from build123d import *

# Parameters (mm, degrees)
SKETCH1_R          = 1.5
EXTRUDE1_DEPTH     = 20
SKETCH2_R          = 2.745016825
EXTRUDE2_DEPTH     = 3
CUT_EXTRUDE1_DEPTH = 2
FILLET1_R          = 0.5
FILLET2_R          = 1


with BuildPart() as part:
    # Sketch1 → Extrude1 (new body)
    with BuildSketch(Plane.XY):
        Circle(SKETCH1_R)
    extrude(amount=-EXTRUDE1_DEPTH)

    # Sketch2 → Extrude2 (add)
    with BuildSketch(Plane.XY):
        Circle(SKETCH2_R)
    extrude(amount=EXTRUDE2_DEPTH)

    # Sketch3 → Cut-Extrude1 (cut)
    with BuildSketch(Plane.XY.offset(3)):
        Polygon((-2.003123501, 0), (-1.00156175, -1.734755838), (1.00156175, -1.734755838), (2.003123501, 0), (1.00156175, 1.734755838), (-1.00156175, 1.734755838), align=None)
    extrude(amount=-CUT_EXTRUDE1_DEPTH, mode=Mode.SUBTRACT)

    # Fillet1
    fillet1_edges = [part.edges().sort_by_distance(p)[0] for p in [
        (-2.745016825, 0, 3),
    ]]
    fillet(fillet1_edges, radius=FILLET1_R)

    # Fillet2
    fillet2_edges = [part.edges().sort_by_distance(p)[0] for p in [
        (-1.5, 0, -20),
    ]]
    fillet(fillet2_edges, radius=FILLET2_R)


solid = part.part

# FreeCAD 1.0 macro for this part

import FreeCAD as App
import Part
import Sketcher
from FreeCAD import Vector
Q = App.Units.Quantity


def edges_at(feature, points):
    """Names of the edges that pass closest to the given points."""
    edges = feature.Shape.Edges
    near = lambda p: min(range(len(edges)), key=lambda i: edges[i].distToShape(Part.Vertex(*p))[0])
    return sorted({f"Edge{near(p) + 1}" for p in points})

doc = App.newDocument("Part")
body = doc.addObject("PartDesign::Body", "Body")

sketch1 = body.newObject("Sketcher::SketchObject", "Sketch")
sketch1.AttachmentSupport = (doc.getObject("XY_Plane"), [""])
sketch1.MapMode = "FlatFace"
sketch1.addGeometry(Part.Circle(Vector(0, 0, 0), Vector(0, 0, 1), 1.5), False)
sketch1.addConstraint(Sketcher.Constraint("Coincident", 0, 3, -1, 1))
sketch1.addConstraint(Sketcher.Constraint("Diameter", 0, 3.0))
pad1 = body.newObject("PartDesign::Pad", "Pad")
pad1.Profile = sketch1
pad1.Length = 20
pad1.Reversed = True

sketch2 = body.newObject("Sketcher::SketchObject", "Sketch001")
sketch2.AttachmentSupport = (doc.getObject("XY_Plane"), [""])
sketch2.MapMode = "FlatFace"
sketch2.addGeometry(Part.Circle(Vector(0, 0, 0), Vector(0, 0, 1), 2.7), False)
sketch2.addConstraint(Sketcher.Constraint("Coincident", 0, 3, -1, 1))
sketch2.addConstraint(Sketcher.Constraint("Diameter", 0, 5.490034))
pad2 = body.newObject("PartDesign::Pad", "Pad001")
pad2.Profile = sketch2
pad2.Length = 3

sketch3 = body.newObject("Sketcher::SketchObject", "Sketch002")
sketch3.AttachmentSupport = (doc.getObject("XY_Plane"), [""])
sketch3.MapMode = "FlatFace"
sketch3.AttachmentOffset = App.Placement(Vector(0, 0, 3), App.Rotation())
sketch3.addGeometry(Part.LineSegment(Vector(-2, 0, 0), Vector(-1, -1.7, 0)), False)
sketch3.addGeometry(Part.LineSegment(Vector(-1, -1.7, 0), Vector(1, -1.7, 0)), False)
sketch3.addGeometry(Part.LineSegment(Vector(1, -1.7, 0), Vector(2, 0, 0)), False)
sketch3.addGeometry(Part.LineSegment(Vector(2, 0, 0), Vector(1, 1.7, 0)), False)
sketch3.addGeometry(Part.LineSegment(Vector(1, 1.7, 0), Vector(-1, 1.7, 0)), False)
sketch3.addGeometry(Part.LineSegment(Vector(-1, 1.7, 0), Vector(-2, 0, 0)), False)
sketch3.addConstraint(Sketcher.Constraint("Coincident", 0, 2, 1, 1))
sketch3.addConstraint(Sketcher.Constraint("Coincident", 1, 2, 2, 1))
sketch3.addConstraint(Sketcher.Constraint("Coincident", 2, 2, 3, 1))
sketch3.addConstraint(Sketcher.Constraint("Coincident", 3, 2, 4, 1))
sketch3.addConstraint(Sketcher.Constraint("Coincident", 4, 2, 5, 1))
sketch3.addConstraint(Sketcher.Constraint("Coincident", 5, 2, 0, 1))
sketch3.addConstraint(Sketcher.Constraint("Horizontal", 1))
sketch3.addConstraint(Sketcher.Constraint("Horizontal", 4))
sketch3.addConstraint(Sketcher.Constraint("Symmetric", 0, 2, 3, 2, -1, 1))
sketch3.addConstraint(Sketcher.Constraint("Symmetric", 2, 2, 5, 2, -1, 1))
sketch3.addConstraint(Sketcher.Constraint("PointOnObject", 2, 2, -1))
sketch3.addConstraint(Sketcher.Constraint("Parallel", 2, 5))
sketch3.addConstraint(Sketcher.Constraint("Vertical", 1, 2, 3, 2))
sketch3.addConstraint(Sketcher.Constraint("Angle", 0, Q("-60 deg")))
sketch3.addConstraint(Sketcher.Constraint("DistanceX", 1, 1, 1, 2, 2.003124))
sketch3.addConstraint(Sketcher.Constraint("DistanceX", 1, 2, 2, 2, 1.001562))
pocket1 = body.newObject("PartDesign::Pocket", "Pocket")
pocket1.Profile = sketch3
pocket1.Length = 2
doc.recompute()

fillet = body.newObject("PartDesign::Fillet", "Fillet")
fillet.Base = (pocket1, edges_at(pocket1, [(-2.745, 0, 3)]))
fillet.Radius = 0.5
doc.recompute()

fillet2 = body.newObject("PartDesign::Fillet", "Fillet001")
fillet2.Base = (fillet, edges_at(fillet, [(-1.5, 0, -20)]))
fillet2.Radius = 1

doc.recompute()
